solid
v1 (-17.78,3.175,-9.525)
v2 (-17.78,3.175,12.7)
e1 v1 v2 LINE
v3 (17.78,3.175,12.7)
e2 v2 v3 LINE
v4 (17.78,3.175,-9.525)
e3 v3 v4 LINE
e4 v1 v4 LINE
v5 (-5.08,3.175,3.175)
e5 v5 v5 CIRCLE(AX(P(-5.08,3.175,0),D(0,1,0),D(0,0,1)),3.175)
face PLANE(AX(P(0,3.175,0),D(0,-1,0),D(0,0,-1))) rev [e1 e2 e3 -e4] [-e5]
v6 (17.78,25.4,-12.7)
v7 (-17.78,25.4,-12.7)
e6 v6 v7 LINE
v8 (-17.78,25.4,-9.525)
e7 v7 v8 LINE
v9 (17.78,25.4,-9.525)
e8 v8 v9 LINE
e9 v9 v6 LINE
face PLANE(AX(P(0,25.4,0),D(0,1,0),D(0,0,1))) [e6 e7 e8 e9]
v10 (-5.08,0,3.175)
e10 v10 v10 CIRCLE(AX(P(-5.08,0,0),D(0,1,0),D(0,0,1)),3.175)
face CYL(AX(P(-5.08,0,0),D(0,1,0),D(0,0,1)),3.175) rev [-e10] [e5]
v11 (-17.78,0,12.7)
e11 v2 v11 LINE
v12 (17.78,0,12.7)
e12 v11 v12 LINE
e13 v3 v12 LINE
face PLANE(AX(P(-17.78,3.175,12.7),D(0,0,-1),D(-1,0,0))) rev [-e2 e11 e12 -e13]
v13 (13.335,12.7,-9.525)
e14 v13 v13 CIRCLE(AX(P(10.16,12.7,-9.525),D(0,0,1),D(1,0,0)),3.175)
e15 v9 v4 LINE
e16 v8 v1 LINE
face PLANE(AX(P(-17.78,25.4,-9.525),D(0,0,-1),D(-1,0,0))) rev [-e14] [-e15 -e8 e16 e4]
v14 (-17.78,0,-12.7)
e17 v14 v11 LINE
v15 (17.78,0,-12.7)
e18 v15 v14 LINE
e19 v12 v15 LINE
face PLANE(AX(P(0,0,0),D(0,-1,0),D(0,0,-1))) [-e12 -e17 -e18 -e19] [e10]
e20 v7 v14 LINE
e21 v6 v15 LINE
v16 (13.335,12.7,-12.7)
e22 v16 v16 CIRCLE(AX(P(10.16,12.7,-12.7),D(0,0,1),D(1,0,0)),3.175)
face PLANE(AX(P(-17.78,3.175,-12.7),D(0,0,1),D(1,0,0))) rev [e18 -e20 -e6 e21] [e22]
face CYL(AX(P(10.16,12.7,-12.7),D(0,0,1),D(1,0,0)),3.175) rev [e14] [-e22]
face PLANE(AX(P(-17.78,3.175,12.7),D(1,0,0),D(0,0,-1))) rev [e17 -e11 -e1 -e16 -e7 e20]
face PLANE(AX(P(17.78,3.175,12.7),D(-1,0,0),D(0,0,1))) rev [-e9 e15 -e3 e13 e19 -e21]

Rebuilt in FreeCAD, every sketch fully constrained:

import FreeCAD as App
import Part
import Sketcher
Q = App.Units.Quantity


def add_polygon(sketch, points):
    """Adds a closed chain of lines whose ends are joined by coincident constraints."""
    first, n = sketch.GeometryCount, len(points)
    for a, b in zip(points, points[1:] + points[:1]):
        sketch.addGeometry(Part.LineSegment(App.Vector(*a, 0), App.Vector(*b, 0)), False)
    for i in range(n):
        sketch.addConstraint(Sketcher.Constraint("Coincident", first + i, 2, first + (i + 1) % n, 1))

doc = App.newDocument("Part")
body = doc.addObject("PartDesign::Body", "Body")

sketch1 = body.newObject("Sketcher::SketchObject", "Sketch")
sketch1.AttachmentSupport = (doc.getObject("XZ_Plane"), [""])
sketch1.MapMode = "FlatFace"
add_polygon(sketch1, [(-17.78, -12.7), (-17.78, 12.7), (17.78, 12.7), (17.78, -12.7)])
sketch1.addConstraint([
    Sketcher.Constraint("Vertical", 0),
    Sketcher.Constraint("Horizontal", 1),
    Sketcher.Constraint("Vertical", 2),
    Sketcher.Constraint("Horizontal", 3),
    Sketcher.Constraint("Symmetric", 0, 2, 2, 2, -1, 1),
    Sketcher.Constraint("DistanceY", 0, 1, 0, 2, Q("1 in")),
    Sketcher.Constraint("DistanceX", 1, 1, 1, 2, Q("1.4 in")),
])
pad1 = body.newObject("PartDesign::Pad", "Pad")
pad1.Profile = sketch1
pad1.Length = Q("0.125 in")
pad1.Reversed = True

sketch2 = body.newObject("Sketcher::SketchObject", "Sketch001")
sketch2.AttachmentSupport = (doc.getObject("XZ_Plane"), [""])
sketch2.MapMode = "FlatFace"
sketch2.AttachmentOffset = App.Placement(App.Vector(0, 0, -0.125 * 25.4), App.Rotation())
add_polygon(sketch2, [(-17.78, -12.7), (-17.78, -9.525), (17.78, -9.525), (17.78, -12.7)])
sketch2.addConstraint([
    Sketcher.Constraint("Vertical", 0),
    Sketcher.Constraint("Horizontal", 1),
    Sketcher.Constraint("Vertical", 2),
    Sketcher.Constraint("Horizontal", 3),
    Sketcher.Constraint("DistanceX", 1, 1, 1, 2, Q("1.4 in")),
    Sketcher.Constraint("DistanceX", 0, 2, -1, 1, Q("0.7 in")),
    Sketcher.Constraint("DistanceY", 2, 2, -1, 1, Q("0.5 in")),
    Sketcher.Constraint("DistanceY", 0, 1, 0, 2, Q("0.125 in")),
])
pad2 = body.newObject("PartDesign::Pad", "Pad001")
pad2.Profile = sketch2
pad2.Length = Q("0.875 in")
pad2.Reversed = True

sketch3 = body.newObject("Sketcher::SketchObject", "Sketch002")
sketch3.AttachmentSupport = (doc.getObject("XZ_Plane"), [""])
sketch3.MapMode = "FlatFace"
sketch3.AttachmentOffset = App.Placement(App.Vector(0, 0, -0.125 * 25.4), App.Rotation())
sketch3.addGeometry(Part.Circle(App.Vector(-5.08, 0, 0), App.Vector(0, 0, 1), 3.175), False)
sketch3.addConstraint([
    Sketcher.Constraint("PointOnObject", 0, 3, -1),
    Sketcher.Constraint("Diameter", 0, Q("0.25 in")),
    Sketcher.Constraint("DistanceX", 0, 3, -1, 1, Q("0.2 in")),
])
pocket1 = body.newObject("PartDesign::Pocket", "Pocket")
pocket1.Profile = sketch3
pocket1.Length = Q("0.125 in")
pocket1.Reversed = True

sketch4 = body.newObject("Sketcher::SketchObject", "Sketch003")
sketch4.AttachmentSupport = (doc.getObject("XY_Plane"), [""])
sketch4.MapMode = "FlatFace"
sketch4.AttachmentOffset = App.Placement(App.Vector(0, 0, -0.375 * 25.4), App.Rotation())
sketch4.addGeometry(Part.Circle(App.Vector(10.16, 12.7, 0), App.Vector(0, 0, 1), 3.175), False)
sketch4.addConstraint([
    Sketcher.Constraint("Diameter", 0, Q("0.25 in")),
    Sketcher.Constraint("DistanceX", -1, 1, 0, 3, Q("0.4 in")),
    Sketcher.Constraint("DistanceY", -1, 1, 0, 3, Q("0.5 in")),
])
pocket2 = body.newObject("PartDesign::Pocket", "Pocket001")
pocket2.Profile = sketch4
pocket2.Length = Q("0.125 in")

doc.recompute()
